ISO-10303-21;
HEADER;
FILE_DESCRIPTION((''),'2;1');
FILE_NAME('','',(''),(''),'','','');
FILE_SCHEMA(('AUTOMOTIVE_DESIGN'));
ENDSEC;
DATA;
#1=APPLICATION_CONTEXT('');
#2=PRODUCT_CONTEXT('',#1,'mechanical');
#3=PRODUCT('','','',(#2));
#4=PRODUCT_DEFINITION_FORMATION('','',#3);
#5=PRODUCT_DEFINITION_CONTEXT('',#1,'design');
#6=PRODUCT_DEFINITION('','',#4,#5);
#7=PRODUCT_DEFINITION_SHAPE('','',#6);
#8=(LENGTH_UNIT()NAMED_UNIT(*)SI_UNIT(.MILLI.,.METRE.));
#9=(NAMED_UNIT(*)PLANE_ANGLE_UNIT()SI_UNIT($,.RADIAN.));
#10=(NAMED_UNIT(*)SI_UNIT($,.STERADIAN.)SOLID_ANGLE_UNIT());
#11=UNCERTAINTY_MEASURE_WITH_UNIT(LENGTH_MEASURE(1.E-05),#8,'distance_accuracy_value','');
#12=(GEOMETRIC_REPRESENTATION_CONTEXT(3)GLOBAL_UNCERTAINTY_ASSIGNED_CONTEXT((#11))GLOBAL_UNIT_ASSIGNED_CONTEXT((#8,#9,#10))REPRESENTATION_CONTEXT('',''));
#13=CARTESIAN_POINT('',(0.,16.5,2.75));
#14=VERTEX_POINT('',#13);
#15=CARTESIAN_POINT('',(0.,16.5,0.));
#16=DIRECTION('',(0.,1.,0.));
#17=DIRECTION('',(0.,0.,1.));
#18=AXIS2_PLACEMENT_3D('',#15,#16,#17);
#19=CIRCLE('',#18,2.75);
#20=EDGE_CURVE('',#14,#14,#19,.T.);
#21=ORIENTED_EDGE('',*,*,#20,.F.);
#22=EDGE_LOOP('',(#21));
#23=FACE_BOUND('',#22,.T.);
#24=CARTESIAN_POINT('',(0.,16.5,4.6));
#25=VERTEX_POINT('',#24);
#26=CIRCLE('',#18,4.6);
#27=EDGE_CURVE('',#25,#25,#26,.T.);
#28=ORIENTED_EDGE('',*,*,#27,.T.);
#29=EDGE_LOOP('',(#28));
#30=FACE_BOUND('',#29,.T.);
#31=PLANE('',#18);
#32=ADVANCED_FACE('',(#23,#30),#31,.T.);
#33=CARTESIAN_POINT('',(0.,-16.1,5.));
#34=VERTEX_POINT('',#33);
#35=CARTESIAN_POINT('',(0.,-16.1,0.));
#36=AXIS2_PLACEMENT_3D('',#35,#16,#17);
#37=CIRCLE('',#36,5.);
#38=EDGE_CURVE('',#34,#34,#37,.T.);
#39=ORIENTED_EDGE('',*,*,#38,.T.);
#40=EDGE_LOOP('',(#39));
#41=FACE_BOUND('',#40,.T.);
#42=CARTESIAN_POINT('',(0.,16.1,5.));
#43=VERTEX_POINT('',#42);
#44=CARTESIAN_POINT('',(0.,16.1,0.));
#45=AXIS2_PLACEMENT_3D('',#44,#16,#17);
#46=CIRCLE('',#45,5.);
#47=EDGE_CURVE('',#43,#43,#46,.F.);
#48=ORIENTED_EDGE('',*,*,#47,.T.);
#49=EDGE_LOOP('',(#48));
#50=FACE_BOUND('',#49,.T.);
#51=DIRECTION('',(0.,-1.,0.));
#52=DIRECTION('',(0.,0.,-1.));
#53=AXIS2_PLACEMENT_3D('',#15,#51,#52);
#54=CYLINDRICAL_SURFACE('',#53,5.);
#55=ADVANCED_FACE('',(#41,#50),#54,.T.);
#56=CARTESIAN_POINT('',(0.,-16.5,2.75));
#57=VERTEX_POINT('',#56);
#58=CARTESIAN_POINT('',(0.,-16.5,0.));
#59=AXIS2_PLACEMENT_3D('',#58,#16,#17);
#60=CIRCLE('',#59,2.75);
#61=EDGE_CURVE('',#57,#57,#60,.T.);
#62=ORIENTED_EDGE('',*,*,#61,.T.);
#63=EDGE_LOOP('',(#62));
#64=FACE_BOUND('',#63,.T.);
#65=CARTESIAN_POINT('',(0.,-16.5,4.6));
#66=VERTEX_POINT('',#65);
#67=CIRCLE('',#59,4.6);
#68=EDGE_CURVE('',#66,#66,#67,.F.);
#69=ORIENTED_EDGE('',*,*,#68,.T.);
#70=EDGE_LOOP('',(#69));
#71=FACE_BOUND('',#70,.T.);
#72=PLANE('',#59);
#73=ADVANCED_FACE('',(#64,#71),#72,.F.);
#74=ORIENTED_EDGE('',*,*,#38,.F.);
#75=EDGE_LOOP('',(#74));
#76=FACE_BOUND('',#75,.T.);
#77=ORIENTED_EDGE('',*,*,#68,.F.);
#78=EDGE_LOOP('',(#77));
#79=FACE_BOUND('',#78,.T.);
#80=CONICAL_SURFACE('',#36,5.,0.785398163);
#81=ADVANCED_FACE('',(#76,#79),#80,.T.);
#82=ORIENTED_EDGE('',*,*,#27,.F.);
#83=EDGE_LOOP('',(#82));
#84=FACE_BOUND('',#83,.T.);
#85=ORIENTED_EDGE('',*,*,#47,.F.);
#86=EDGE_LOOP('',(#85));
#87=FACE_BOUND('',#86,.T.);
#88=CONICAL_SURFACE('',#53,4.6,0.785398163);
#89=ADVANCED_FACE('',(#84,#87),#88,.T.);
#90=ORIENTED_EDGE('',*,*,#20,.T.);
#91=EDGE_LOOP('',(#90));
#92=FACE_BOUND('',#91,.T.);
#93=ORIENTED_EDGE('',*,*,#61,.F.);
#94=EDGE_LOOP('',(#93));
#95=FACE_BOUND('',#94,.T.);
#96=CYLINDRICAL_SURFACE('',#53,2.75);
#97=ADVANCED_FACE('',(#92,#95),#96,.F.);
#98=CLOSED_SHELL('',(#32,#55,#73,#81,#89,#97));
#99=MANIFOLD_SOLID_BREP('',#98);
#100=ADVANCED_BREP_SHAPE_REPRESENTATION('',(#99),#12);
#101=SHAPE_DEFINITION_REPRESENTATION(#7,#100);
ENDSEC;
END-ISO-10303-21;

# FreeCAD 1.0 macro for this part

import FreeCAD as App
import Part
import Sketcher
from FreeCAD import Vector


def edges_at(feature, points):
    """Names of the edges that pass closest to the given points."""
    edges = feature.Shape.Edges
    near = lambda p: min(range(len(edges)), key=lambda i: edges[i].distToShape(Part.Vertex(*p))[0])
    return sorted({f"Edge{near(p) + 1}" for p in points})

doc = App.newDocument("Part")
body = doc.addObject("PartDesign::Body", "Body")

sketch1 = body.newObject("Sketcher::SketchObject", "Sketch")
sketch1.AttachmentSupport = (doc.getObject("XZ_Plane"), [""])
sketch1.MapMode = "FlatFace"
sketch1.addGeometry(Part.Circle(Vector(0, 0, 0), Vector(0, 0, 1), 5), False)
sketch1.addGeometry(Part.Circle(Vector(0, 0, 0), Vector(0, 0, 1), 2.8), False)
sketch1.addConstraint(Sketcher.Constraint("Coincident", 0, 3, -1, 1))
sketch1.addConstraint(Sketcher.Constraint("Coincident", 1, 3, -1, 1))
sketch1.addConstraint(Sketcher.Constraint("Diameter", 0, 10.0))
sketch1.addConstraint(Sketcher.Constraint("Diameter", 1, 5.5))
pad1 = body.newObject("PartDesign::Pad", "Pad")
pad1.Profile = sketch1
pad1.Length = 33
pad1.Midplane = True
doc.recompute()

chamfer = body.newObject("PartDesign::Chamfer", "Chamfer")
chamfer.Base = (pad1, edges_at(pad1, [(-5, -16.5, 0), (-5, 16.5, 0)]))
chamfer.Size = 0.4

doc.recompute()
